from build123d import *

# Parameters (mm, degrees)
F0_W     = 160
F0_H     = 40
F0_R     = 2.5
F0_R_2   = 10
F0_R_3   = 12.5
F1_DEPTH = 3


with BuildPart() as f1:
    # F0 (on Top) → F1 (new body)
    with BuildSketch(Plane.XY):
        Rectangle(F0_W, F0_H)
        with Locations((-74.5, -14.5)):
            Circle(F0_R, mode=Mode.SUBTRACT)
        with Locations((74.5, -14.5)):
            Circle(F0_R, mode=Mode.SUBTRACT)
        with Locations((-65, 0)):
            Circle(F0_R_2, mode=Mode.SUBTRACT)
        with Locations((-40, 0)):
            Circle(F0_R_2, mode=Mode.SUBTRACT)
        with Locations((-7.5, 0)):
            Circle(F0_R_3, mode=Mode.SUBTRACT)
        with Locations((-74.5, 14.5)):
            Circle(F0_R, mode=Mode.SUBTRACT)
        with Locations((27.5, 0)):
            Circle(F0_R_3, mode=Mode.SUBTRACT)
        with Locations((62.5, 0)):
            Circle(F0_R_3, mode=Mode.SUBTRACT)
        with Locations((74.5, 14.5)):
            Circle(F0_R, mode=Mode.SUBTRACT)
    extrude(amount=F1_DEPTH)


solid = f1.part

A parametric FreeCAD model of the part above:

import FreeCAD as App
import Part
import Sketcher
from FreeCAD import Vector
Q = App.Units.Quantity


def add_polygon(sketch, points):
    """Adds a closed chain of lines whose ends are joined by coincident constraints."""
    first, n = sketch.GeometryCount, len(points)
    for a, b in zip(points, points[1:] + points[:1]):
        sketch.addGeometry(Part.LineSegment(App.Vector(*a, 0), App.Vector(*b, 0)), False)
    for i in range(n):
        sketch.addConstraint(Sketcher.Constraint("Coincident", first + i, 2, first + (i + 1) % n, 1))

doc = App.newDocument("Part")
params = doc.addObject("Spreadsheet::Sheet", "Params")
for row, (alias, value) in enumerate([
    ("sketch1_diameter", "5 mm"),
    ("sketch1_diameter2", "20 mm"),
    ("sketch1_diameter3", "25 mm"),
    ("sketch1_width", "160 mm"),
    ("sketch1_height", "40 mm"),
    ("pad1_length", "3 mm"),
], start=1):
    params.set(f"A{row}", alias)
    params.set(f"B{row}", "=" + value)
    params.setAlias(f"B{row}", alias)

body = doc.addObject("PartDesign::Body", "Body")

# Sketch on XY plane
sketch1 = doc.addObject("Sketcher::SketchObject", "Sketch")
body.addObject(sketch1)
sketch1.AttachmentSupport = (doc.XY_Plane, [""])
sketch1.MapMode = "FlatFace"
add_polygon(sketch1, [(-80, 20), (-80, -20), (80, -20), (80, 20)])  # lines 0-3
sketch1.addGeometry(Part.Circle(Vector(-74.5, -14.5, 0), Vector(0, 0, 1), 2.5), False)  # 4
sketch1.addGeometry(Part.Circle(Vector(74.5, -14.5, 0), Vector(0, 0, 1), 2.5), False)  # 5
sketch1.addGeometry(Part.Circle(Vector(-65, 0, 0), Vector(0, 0, 1), 10), False)  # 6
sketch1.addGeometry(Part.Circle(Vector(-40, 0, 0), Vector(0, 0, 1), 10), False)  # 7
sketch1.addGeometry(Part.Circle(Vector(-7.5, 0, 0), Vector(0, 0, 1), 12.5), False)  # 8
sketch1.addGeometry(Part.Circle(Vector(-74.5, 14.5, 0), Vector(0, 0, 1), 2.5), False)  # 9
sketch1.addGeometry(Part.Circle(Vector(27.5, 0, 0), Vector(0, 0, 1), 12.5), False)  # 10
sketch1.addGeometry(Part.Circle(Vector(62.5, 0, 0), Vector(0, 0, 1), 12.5), False)  # 11
sketch1.addGeometry(Part.Circle(Vector(74.5, 14.5, 0), Vector(0, 0, 1), 2.5), False)  # 12
sketch1.addConstraint([
    Sketcher.Constraint("Vertical", 0),
    Sketcher.Constraint("Horizontal", 1),
    Sketcher.Constraint("Vertical", 2),
    Sketcher.Constraint("Horizontal", 3),
    Sketcher.Constraint("Equal", 4, 5),
    Sketcher.Constraint("Equal", 6, 7),
    Sketcher.Constraint("Equal", 5, 9),
    Sketcher.Constraint("Equal", 8, 10),
    Sketcher.Constraint("Equal", 10, 11),
    Sketcher.Constraint("Equal", 9, 12),
    Sketcher.Constraint("Symmetric", 5, 3, 9, 3, -1, 1),
    Sketcher.Constraint("Symmetric", 4, 3, 12, 3, -1, 1),
    Sketcher.Constraint("Symmetric", 0, 2, 2, 2, -1, 1),
    Sketcher.Constraint("Symmetric", 4, 3, 5, 3, -2),
    Sketcher.Constraint("PointOnObject", 6, 3, -1),
    Sketcher.Constraint("PointOnObject", 7, 3, -1),
    Sketcher.Constraint("PointOnObject", 8, 3, -1),
    Sketcher.Constraint("PointOnObject", 10, 3, -1),
    Sketcher.Constraint("PointOnObject", 11, 3, -1),
    Sketcher.Constraint("Diameter", 4, Q("5 mm")),
    Sketcher.Constraint("Diameter", 6, Q("20 mm")),
    Sketcher.Constraint("Diameter", 8, Q("25 mm")),
    Sketcher.Constraint("DistanceX", 1, 1, 1, 2, Q("160 mm")),
    Sketcher.Constraint("DistanceY", 0, 2, 0, 1, Q("40 mm")),
    Sketcher.Constraint("DistanceX", 6, 3, -1, 1, Q("65 mm")),
    Sketcher.Constraint("DistanceX", 7, 3, -1, 1, Q("40 mm")),
    Sketcher.Constraint("DistanceX", 4, 3, 5, 3, Q("149 mm")),
    Sketcher.Constraint("DistanceX", 4, 3, 8, 3, Q("67 mm")),
    Sketcher.Constraint("DistanceY", 4, 3, 9, 3, Q("29 mm")),
    Sketcher.Constraint("DistanceX", 8, 3, 10, 3, Q("35 mm")),
    Sketcher.Constraint("DistanceX", 11, 3, 5, 3, Q("12 mm")),
])
sketch1.setExpression("Constraints[23]", "Params.sketch1_diameter")
sketch1.setExpression("Constraints[24]", "Params.sketch1_diameter2")
sketch1.setExpression("Constraints[25]", "Params.sketch1_diameter3")
sketch1.setExpression("Constraints[26]", "Params.sketch1_width")
sketch1.setExpression("Constraints[27]", "Params.sketch1_height")
pad1 = doc.addObject("PartDesign::Pad", "Pad")
body.addObject(pad1)
pad1.Profile = sketch1
pad1.setExpression("Length", "Params.pad1_length")

doc.recompute()
